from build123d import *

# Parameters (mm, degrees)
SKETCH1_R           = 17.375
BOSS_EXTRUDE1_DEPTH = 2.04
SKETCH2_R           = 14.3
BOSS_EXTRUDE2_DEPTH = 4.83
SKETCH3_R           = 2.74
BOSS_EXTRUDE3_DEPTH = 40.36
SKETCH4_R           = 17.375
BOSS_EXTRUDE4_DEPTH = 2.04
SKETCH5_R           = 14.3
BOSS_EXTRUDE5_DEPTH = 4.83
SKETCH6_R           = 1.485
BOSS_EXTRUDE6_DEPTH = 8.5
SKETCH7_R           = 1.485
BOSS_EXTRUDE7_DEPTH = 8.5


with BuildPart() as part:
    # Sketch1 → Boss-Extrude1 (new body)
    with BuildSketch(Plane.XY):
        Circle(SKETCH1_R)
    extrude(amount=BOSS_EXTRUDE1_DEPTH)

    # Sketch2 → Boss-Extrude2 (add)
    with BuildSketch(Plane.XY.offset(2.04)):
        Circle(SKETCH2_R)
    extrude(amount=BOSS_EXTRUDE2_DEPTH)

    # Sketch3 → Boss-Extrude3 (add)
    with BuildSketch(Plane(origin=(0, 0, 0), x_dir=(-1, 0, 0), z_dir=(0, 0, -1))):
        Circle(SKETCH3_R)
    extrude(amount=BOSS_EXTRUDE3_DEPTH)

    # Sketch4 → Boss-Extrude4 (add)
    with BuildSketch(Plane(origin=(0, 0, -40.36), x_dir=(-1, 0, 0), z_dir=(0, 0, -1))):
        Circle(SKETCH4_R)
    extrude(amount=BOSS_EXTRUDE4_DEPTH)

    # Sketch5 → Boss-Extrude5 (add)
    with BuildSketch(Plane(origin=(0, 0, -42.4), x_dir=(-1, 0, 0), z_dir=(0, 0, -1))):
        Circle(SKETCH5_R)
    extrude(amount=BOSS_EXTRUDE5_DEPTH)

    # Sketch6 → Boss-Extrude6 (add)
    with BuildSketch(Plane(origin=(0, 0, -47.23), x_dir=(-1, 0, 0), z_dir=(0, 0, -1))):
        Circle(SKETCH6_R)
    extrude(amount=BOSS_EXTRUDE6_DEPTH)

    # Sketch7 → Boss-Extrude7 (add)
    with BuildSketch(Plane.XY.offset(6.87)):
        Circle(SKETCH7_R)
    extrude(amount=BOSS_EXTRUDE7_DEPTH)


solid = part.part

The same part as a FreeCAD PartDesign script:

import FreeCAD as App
import Part
import Sketcher

V = App.Vector

doc = App.newDocument("Part")
body = doc.addObject("PartDesign::Body", "Body")

# Sketch on XY plane
sketch1 = doc.addObject("Sketcher::SketchObject", "Sketch")
body.addObject(sketch1)
sketch1.AttachmentSupport = (doc.XY_Plane, [""])
sketch1.MapMode = "FlatFace"
sketch1.addGeometry(Part.Circle(V(0, 0, 0), V(0, 0, 1), 17), False)
sketch1.addConstraint(Sketcher.Constraint("Coincident", 0, 3, -1, 1))
sketch1.addConstraint(Sketcher.Constraint("Diameter", 0, 34.75))
pad1 = doc.addObject("PartDesign::Pad", "Pad")
body.addObject(pad1)
pad1.Profile = sketch1
pad1.Length = 2.04

# Sketch on XY plane
sketch2 = doc.addObject("Sketcher::SketchObject", "Sketch001")
body.addObject(sketch2)
sketch2.AttachmentSupport = (doc.XY_Plane, [""])
sketch2.MapMode = "FlatFace"
sketch2.AttachmentOffset = App.Placement(V(0, 0, 2.04), App.Rotation())
sketch2.addGeometry(Part.Circle(V(0, 0, 0), V(0, 0, 1), 14), False)
sketch2.addConstraint(Sketcher.Constraint("Coincident", 0, 3, -1, 1))
sketch2.addConstraint(Sketcher.Constraint("Diameter", 0, 28.6))
pad2 = doc.addObject("PartDesign::Pad", "Pad001")
body.addObject(pad2)
pad2.Profile = sketch2
pad2.Length = 4.83

# Sketch on XY plane
sketch3 = doc.addObject("Sketcher::SketchObject", "Sketch002")
body.addObject(sketch3)
sketch3.AttachmentSupport = (doc.XY_Plane, [""])
sketch3.MapMode = "FlatFace"
sketch3.addGeometry(Part.Circle(V(0, 0, 0), V(0, 0, 1), 2.7), False)
sketch3.addConstraint(Sketcher.Constraint("Coincident", 0, 3, -1, 1))
sketch3.addConstraint(Sketcher.Constraint("Diameter", 0, 5.48))
pad3 = doc.addObject("PartDesign::Pad", "Pad002")
body.addObject(pad3)
pad3.Profile = sketch3
pad3.Length = 40.36
pad3.Reversed = True

# Sketch on XY plane
sketch4 = doc.addObject("Sketcher::SketchObject", "Sketch003")
body.addObject(sketch4)
sketch4.AttachmentSupport = (doc.XY_Plane, [""])
sketch4.MapMode = "FlatFace"
sketch4.AttachmentOffset = App.Placement(V(0, 0, -40.36), App.Rotation())
sketch4.addGeometry(Part.Circle(V(0, 0, 0), V(0, 0, 1), 17), False)
sketch4.addConstraint(Sketcher.Constraint("Coincident", 0, 3, -1, 1))
sketch4.addConstraint(Sketcher.Constraint("Diameter", 0, 34.75))
pad4 = doc.addObject("PartDesign::Pad", "Pad003")
body.addObject(pad4)
pad4.Profile = sketch4
pad4.Length = 2.04
pad4.Reversed = True

# Sketch on XY plane
sketch5 = doc.addObject("Sketcher::SketchObject", "Sketch004")
body.addObject(sketch5)
sketch5.AttachmentSupport = (doc.XY_Plane, [""])
sketch5.MapMode = "FlatFace"
sketch5.AttachmentOffset = App.Placement(V(0, 0, -42.4), App.Rotation())
sketch5.addGeometry(Part.Circle(V(0, 0, 0), V(0, 0, 1), 14), False)
sketch5.addConstraint(Sketcher.Constraint("Coincident", 0, 3, -1, 1))
sketch5.addConstraint(Sketcher.Constraint("Diameter", 0, 28.6))
pad5 = doc.addObject("PartDesign::Pad", "Pad004")
body.addObject(pad5)
pad5.Profile = sketch5
pad5.Length = 4.83
pad5.Reversed = True

# Sketch on XY plane
sketch6 = doc.addObject("Sketcher::SketchObject", "Sketch005")
body.addObject(sketch6)
sketch6.AttachmentSupport = (doc.XY_Plane, [""])
sketch6.MapMode = "FlatFace"
sketch6.AttachmentOffset = App.Placement(V(0, 0, -47.23), App.Rotation())
sketch6.addGeometry(Part.Circle(V(0, 0, 0), V(0, 0, 1), 1.5), False)
sketch6.addConstraint(Sketcher.Constraint("Coincident", 0, 3, -1, 1))
sketch6.addConstraint(Sketcher.Constraint("Diameter", 0, 2.97))
pad6 = doc.addObject("PartDesign::Pad", "Pad005")
body.addObject(pad6)
pad6.Profile = sketch6
pad6.Length = 8.5
pad6.Reversed = True

# Sketch on XY plane
sketch7 = doc.addObject("Sketcher::SketchObject", "Sketch006")
body.addObject(sketch7)
sketch7.AttachmentSupport = (doc.XY_Plane, [""])
sketch7.MapMode = "FlatFace"
sketch7.AttachmentOffset = App.Placement(V(0, 0, 6.87), App.Rotation())
sketch7.addGeometry(Part.Circle(V(0, 0, 0), V(0, 0, 1), 1.5), False)
sketch7.addConstraint(Sketcher.Constraint("Coincident", 0, 3, -1, 1))
sketch7.addConstraint(Sketcher.Constraint("Diameter", 0, 2.97))
pad7 = doc.addObject("PartDesign::Pad", "Pad006")
body.addObject(pad7)
pad7.Profile = sketch7
pad7.Length = 8.5

doc.recompute()
